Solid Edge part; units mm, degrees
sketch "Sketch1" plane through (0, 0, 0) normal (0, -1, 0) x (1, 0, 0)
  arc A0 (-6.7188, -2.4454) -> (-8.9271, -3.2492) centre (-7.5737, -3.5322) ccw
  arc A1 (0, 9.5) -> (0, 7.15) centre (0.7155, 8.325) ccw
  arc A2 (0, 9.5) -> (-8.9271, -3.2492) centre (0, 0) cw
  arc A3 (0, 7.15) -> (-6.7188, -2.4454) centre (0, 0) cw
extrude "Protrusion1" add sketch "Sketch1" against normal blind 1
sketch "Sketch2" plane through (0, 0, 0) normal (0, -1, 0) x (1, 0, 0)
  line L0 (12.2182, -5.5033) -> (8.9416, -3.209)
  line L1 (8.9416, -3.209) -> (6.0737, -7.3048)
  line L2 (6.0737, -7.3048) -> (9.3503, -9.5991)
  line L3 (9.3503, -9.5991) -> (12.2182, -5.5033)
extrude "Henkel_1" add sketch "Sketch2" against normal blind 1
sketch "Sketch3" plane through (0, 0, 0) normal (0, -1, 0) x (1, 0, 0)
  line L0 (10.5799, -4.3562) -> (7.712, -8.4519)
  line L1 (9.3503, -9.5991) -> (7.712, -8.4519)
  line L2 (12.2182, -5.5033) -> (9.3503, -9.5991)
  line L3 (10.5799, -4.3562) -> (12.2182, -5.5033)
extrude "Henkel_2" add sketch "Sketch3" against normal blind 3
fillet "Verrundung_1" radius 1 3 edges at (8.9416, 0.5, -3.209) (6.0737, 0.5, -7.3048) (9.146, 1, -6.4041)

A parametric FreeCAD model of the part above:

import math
import FreeCAD as App
import Part
import Sketcher
from FreeCAD import Vector
Q = App.Units.Quantity


def edges_at(feature, points):
    """Names of the edges that pass closest to the given points."""
    edges = feature.Shape.Edges
    near = lambda p: min(range(len(edges)), key=lambda i: edges[i].distToShape(Part.Vertex(*p))[0])
    return sorted({f"Edge{near(p) + 1}" for p in points})

doc = App.newDocument("Part")
body = doc.addObject("PartDesign::Body", "Body")

sketch1 = body.newObject("Sketcher::SketchObject", "Sketch")
sketch1.AttachmentSupport = (doc.getObject("XZ_Plane"), [""])
sketch1.MapMode = "FlatFace"
sketch1.addGeometry(Part.ArcOfCircle(Part.Circle(Vector(0, 0, 0), Vector(0, 0, 1), 7.2), math.radians(-160), math.radians(90)), False)
sketch1.addGeometry(Part.ArcOfCircle(Part.Circle(Vector(-7.6, -3.5, 0), Vector(0, 0, 1), 1.4), math.radians(52), math.radians(168)), False)
sketch1.addGeometry(Part.ArcOfCircle(Part.Circle(Vector(0, 0, 0), Vector(0, 0, 1), 9.5), math.radians(-160), math.radians(90)), False)
sketch1.addGeometry(Part.ArcOfCircle(Part.Circle(Vector(0.7, 8.3, 0), Vector(0, 0, 1), 1.4), math.radians(121), math.radians(239)), False)
sketch1.addConstraint(Sketcher.Constraint("Coincident", 0, 1, 1, 1))
sketch1.addConstraint(Sketcher.Constraint("Coincident", 1, 2, 2, 1))
sketch1.addConstraint(Sketcher.Constraint("Coincident", 2, 2, 3, 1))
sketch1.addConstraint(Sketcher.Constraint("Coincident", 3, 2, 0, 2))
sketch1.addConstraint(Sketcher.Constraint("Coincident", 0, 3, -1, 1))
sketch1.addConstraint(Sketcher.Constraint("Coincident", 2, 3, -1, 1))
sketch1.addConstraint(Sketcher.Constraint("PointOnObject", 2, 2, -2))
sketch1.addConstraint(Sketcher.Constraint("PointOnObject", 3, 2, -2))
sketch1.addConstraint(Sketcher.Constraint("Radius", 2, 9.5))
sketch1.addConstraint(Sketcher.Constraint("Radius", 0, 7.15))
sketch1.addConstraint(Sketcher.Constraint("Radius", 1, 1.3827))
sketch1.addConstraint(Sketcher.Constraint("Radius", 3, 1.3757))
sketch1.addConstraint(Sketcher.Constraint("DistanceX", 1, 3, 0, 1, 0.855))
sketch1.addConstraint(Sketcher.Constraint("DistanceX", 1, 3, -1, 1, 7.5737))
pad1 = body.newObject("PartDesign::Pad", "Pad")
pad1.Profile = sketch1
pad1.Length = 1
pad1.Reversed = True

sketch2 = body.newObject("Sketcher::SketchObject", "Sketch001")
sketch2.AttachmentSupport = (doc.getObject("XZ_Plane"), [""])
sketch2.MapMode = "FlatFace"
sketch2.addGeometry(Part.LineSegment(Vector(9.4, -9.6, 0), Vector(12.2, -5.5, 0)), False)
sketch2.addGeometry(Part.LineSegment(Vector(12.2, -5.5, 0), Vector(8.9, -3.2, 0)), False)
sketch2.addGeometry(Part.LineSegment(Vector(8.9, -3.2, 0), Vector(6.1, -7.3, 0)), False)
sketch2.addGeometry(Part.LineSegment(Vector(6.1, -7.3, 0), Vector(9.4, -9.6, 0)), False)
sketch2.addConstraint(Sketcher.Constraint("Coincident", 0, 2, 1, 1))
sketch2.addConstraint(Sketcher.Constraint("Coincident", 1, 2, 2, 1))
sketch2.addConstraint(Sketcher.Constraint("Coincident", 2, 2, 3, 1))
sketch2.addConstraint(Sketcher.Constraint("Coincident", 3, 2, 0, 1))
sketch2.addConstraint(Sketcher.Constraint("Perpendicular", 0, 1))
sketch2.addConstraint(Sketcher.Constraint("Perpendicular", 1, 2))
sketch2.addConstraint(Sketcher.Constraint("Perpendicular", 2, 3))
sketch2.addConstraint(Sketcher.Constraint("Angle", 0, Q("55 deg")))
sketch2.addConstraint(Sketcher.Constraint("Distance", 0, 5.0))
sketch2.addConstraint(Sketcher.Constraint("Distance", 1, 4.0))
sketch2.addConstraint(Sketcher.Constraint("DistanceY", 1, 2, -1, 1, 3.209))
sketch2.addConstraint(Sketcher.Constraint("DistanceX", -1, 1, 0, 2, 12.2182))
pad2 = body.newObject("PartDesign::Pad", "Pad001")
pad2.Profile = sketch2
pad2.Length = 1
pad2.Reversed = True

sketch3 = body.newObject("Sketcher::SketchObject", "Sketch002")
sketch3.AttachmentSupport = (doc.getObject("XZ_Plane"), [""])
sketch3.MapMode = "FlatFace"
sketch3.addGeometry(Part.LineSegment(Vector(12.2, -5.5, 0), Vector(10.6, -4.4, 0)), False)
sketch3.addGeometry(Part.LineSegment(Vector(10.6, -4.4, 0), Vector(7.7, -8.5, 0)), False)
sketch3.addGeometry(Part.LineSegment(Vector(7.7, -8.5, 0), Vector(9.4, -9.6, 0)), False)
sketch3.addGeometry(Part.LineSegment(Vector(9.4, -9.6, 0), Vector(12.2, -5.5, 0)), False)
sketch3.addConstraint(Sketcher.Constraint("Coincident", 0, 2, 1, 1))
sketch3.addConstraint(Sketcher.Constraint("Coincident", 1, 2, 2, 1))
sketch3.addConstraint(Sketcher.Constraint("Coincident", 2, 2, 3, 1))
sketch3.addConstraint(Sketcher.Constraint("Coincident", 3, 2, 0, 1))
sketch3.addConstraint(Sketcher.Constraint("Perpendicular", 0, 1))
sketch3.addConstraint(Sketcher.Constraint("Perpendicular", 1, 2))
sketch3.addConstraint(Sketcher.Constraint("Perpendicular", 2, 3))
sketch3.addConstraint(Sketcher.Constraint("Angle", 0, Q("145.0012 deg")))
sketch3.addConstraint(Sketcher.Constraint("Distance", 0, 2.0))
sketch3.addConstraint(Sketcher.Constraint("Distance", 1, 5.0))
sketch3.addConstraint(Sketcher.Constraint("DistanceX", -1, 1, 0, 2, 10.58))
sketch3.addConstraint(Sketcher.Constraint("DistanceY", 1, 2, -1, 1, 8.452))
pad3 = body.newObject("PartDesign::Pad", "Pad002")
pad3.Profile = sketch3
pad3.Length = 3
pad3.Reversed = True
doc.recompute()

fillet = body.newObject("PartDesign::Fillet", "Fillet")
fillet.Base = (pad3, edges_at(pad3, [(8.942, 0.5, -3.209), (6.074, 0.5, -7.305), (9.146, 1, -6.404)]))
fillet.Radius = 1

doc.recompute()
